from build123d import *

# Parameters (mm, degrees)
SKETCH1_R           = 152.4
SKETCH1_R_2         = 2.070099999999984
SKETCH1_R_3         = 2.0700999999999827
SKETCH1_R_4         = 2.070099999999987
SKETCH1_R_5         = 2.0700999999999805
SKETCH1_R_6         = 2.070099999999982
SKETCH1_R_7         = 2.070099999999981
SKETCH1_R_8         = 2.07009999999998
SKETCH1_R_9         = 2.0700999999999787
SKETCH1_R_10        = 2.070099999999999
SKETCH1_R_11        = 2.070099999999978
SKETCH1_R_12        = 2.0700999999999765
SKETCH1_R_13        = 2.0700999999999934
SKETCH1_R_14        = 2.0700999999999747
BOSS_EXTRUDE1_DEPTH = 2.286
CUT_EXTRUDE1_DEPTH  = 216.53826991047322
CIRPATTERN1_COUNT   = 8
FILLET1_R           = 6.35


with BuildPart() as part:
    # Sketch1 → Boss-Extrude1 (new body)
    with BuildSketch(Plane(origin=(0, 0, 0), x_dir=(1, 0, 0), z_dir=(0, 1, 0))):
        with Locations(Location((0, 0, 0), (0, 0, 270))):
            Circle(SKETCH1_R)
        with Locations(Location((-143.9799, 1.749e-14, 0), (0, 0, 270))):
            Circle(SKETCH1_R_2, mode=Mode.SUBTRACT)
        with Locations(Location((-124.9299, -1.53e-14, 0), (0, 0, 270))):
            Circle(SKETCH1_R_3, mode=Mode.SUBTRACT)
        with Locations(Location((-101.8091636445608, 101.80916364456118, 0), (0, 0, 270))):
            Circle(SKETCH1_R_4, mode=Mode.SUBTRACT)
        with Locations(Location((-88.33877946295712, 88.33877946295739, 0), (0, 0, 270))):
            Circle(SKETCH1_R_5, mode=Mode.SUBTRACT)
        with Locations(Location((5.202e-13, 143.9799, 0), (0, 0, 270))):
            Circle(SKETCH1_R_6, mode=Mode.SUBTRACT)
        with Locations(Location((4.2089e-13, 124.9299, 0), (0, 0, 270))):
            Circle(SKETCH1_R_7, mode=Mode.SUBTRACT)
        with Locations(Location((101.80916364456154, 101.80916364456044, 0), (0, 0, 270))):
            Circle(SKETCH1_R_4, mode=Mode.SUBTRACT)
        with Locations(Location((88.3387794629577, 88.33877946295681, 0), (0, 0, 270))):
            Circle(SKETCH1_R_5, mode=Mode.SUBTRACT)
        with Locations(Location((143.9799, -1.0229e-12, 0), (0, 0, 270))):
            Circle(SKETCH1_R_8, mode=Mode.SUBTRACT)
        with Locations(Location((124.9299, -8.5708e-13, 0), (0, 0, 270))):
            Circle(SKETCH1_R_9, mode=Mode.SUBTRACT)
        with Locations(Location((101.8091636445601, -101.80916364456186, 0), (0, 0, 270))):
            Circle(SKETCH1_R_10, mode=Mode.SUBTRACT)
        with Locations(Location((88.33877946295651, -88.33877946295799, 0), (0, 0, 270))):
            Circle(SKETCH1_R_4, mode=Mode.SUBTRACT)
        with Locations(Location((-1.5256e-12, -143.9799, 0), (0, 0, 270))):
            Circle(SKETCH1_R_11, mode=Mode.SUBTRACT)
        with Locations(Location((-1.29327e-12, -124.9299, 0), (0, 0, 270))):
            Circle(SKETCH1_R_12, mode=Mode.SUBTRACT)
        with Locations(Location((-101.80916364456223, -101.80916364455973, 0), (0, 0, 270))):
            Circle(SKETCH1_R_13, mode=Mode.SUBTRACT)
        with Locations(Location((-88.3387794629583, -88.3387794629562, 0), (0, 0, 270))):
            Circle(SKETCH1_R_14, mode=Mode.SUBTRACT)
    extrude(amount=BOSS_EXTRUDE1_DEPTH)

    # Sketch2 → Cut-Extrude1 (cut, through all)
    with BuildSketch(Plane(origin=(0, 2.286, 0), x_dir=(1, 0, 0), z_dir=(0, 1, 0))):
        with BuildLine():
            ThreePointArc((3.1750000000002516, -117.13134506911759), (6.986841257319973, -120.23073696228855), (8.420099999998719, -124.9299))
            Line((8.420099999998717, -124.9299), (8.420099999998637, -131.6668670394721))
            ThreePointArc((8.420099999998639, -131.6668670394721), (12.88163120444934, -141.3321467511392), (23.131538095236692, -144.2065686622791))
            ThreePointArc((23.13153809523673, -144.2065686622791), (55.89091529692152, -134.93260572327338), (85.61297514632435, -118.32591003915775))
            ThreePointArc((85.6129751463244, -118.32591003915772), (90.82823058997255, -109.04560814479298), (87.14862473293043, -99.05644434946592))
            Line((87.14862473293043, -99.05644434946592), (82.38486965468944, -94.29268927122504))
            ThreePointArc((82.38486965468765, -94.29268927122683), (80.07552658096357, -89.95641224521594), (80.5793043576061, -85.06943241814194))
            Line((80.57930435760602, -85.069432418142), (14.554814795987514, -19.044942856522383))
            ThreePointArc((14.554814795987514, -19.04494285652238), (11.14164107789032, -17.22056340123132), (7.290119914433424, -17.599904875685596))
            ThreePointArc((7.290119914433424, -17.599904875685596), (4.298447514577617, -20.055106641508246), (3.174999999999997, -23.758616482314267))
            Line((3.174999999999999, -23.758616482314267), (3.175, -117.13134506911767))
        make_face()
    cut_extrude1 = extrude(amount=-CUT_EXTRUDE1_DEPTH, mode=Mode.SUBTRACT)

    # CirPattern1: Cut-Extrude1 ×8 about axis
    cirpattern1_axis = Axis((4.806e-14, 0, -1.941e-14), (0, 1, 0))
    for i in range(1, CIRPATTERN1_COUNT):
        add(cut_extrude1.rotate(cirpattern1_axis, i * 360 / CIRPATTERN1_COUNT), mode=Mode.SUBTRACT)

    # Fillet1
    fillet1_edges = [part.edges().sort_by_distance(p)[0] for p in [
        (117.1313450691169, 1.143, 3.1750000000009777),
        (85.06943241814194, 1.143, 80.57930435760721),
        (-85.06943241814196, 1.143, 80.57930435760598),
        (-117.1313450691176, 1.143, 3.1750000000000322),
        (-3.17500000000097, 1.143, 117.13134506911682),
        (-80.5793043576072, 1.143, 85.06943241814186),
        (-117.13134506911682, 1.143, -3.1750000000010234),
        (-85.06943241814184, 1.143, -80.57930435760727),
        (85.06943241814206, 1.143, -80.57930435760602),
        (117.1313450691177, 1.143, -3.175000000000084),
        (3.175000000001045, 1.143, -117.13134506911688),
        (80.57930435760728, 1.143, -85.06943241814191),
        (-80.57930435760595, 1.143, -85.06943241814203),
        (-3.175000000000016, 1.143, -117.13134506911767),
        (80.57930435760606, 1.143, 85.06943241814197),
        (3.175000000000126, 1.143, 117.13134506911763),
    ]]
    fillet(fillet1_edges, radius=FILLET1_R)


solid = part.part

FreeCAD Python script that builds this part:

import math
import FreeCAD as App
import Part
import Sketcher

V = App.Vector
Q = App.Units.Quantity


def edges_at(feature, points):
    """Names of the edges that pass closest to the given points."""
    edges = feature.Shape.Edges
    near = lambda p: min(range(len(edges)), key=lambda i: edges[i].distToShape(Part.Vertex(*p))[0])
    return sorted({f"Edge{near(p) + 1}" for p in points})

doc = App.newDocument("Part")
params = doc.addObject("Spreadsheet::Sheet", "Params")
for row, (alias, value) in enumerate([
    ("sketch1_diameter", "12 in"),
    ("sketch1_diameter2", "0.163 in"),
    ("pad1_length", "0.09 in"),
    ("sketch2_radius", "0.5 in"),
    ("sketch2_radius2", "5.75 in"),
    ("fillet_radius", "0.25 in"),
], start=1):
    params.set(f"A{row}", alias)
    params.set(f"B{row}", "=" + value)
    params.setAlias(f"B{row}", alias)

body = doc.addObject("PartDesign::Body", "Body")

# Sketch on XZ plane
sketch1 = body.newObject("Sketcher::SketchObject", "Sketch")
sketch1.AttachmentSupport = (doc.getObject("XZ_Plane"), [""])
sketch1.MapMode = "FlatFace"
sketch1.addGeometry([
    Part.Circle(V(0, 0, 0), V(0, 0, 1), 152.4),  # 0
    Part.Circle(V(-101.809164, -101.809164, 0), V(0, 0, 1), 2.0701),  # 1
    Part.Circle(V(-88.338779, -88.338779, 0), V(0, 0, 1), 2.0701),  # 2
    Part.Circle(V(-143.9799, 0, 0), V(0, 0, 1), 2.0701),  # 3
    Part.Circle(V(-124.9299, 0, 0), V(0, 0, 1), 2.0701),  # 4
    Part.Circle(V(-101.809164, 101.809164, 0), V(0, 0, 1), 2.0701),  # 5
    Part.Circle(V(-88.338779, 88.338779, 0), V(0, 0, 1), 2.0701),  # 6
    Part.Circle(V(0, 124.9299, 0), V(0, 0, 1), 2.0701),  # 7
    Part.Circle(V(0, 143.9799, 0), V(0, 0, 1), 2.0701),  # 8
    Part.Circle(V(0, -143.9799, 0), V(0, 0, 1), 2.0701),  # 9
    Part.Circle(V(0, -124.9299, 0), V(0, 0, 1), 2.0701),  # 10
    Part.Circle(V(88.338779, -88.338779, 0), V(0, 0, 1), 2.0701),  # 11
    Part.Circle(V(101.809164, -101.809164, 0), V(0, 0, 1), 2.0701),  # 12
    Part.Circle(V(124.9299, 0, 0), V(0, 0, 1), 2.0701),  # 13
    Part.Circle(V(143.9799, 0, 0), V(0, 0, 1), 2.0701),  # 14
    Part.Circle(V(88.338779, 88.338779, 0), V(0, 0, 1), 2.0701),  # 15
    Part.Circle(V(101.809164, 101.809164, 0), V(0, 0, 1), 2.0701),  # 16
], False)
sketch1.addConstraint([
    Sketcher.Constraint("Coincident", 0, 3, -1, 1),
    Sketcher.Constraint("Equal", 1, 2),
    Sketcher.Constraint("Equal", 2, 3),
    Sketcher.Constraint("Equal", 3, 4),
    Sketcher.Constraint("Equal", 4, 5),
    Sketcher.Constraint("Equal", 5, 6),
    Sketcher.Constraint("Equal", 6, 7),
    Sketcher.Constraint("Equal", 7, 8),
    Sketcher.Constraint("Equal", 8, 9),
    Sketcher.Constraint("Equal", 9, 10),
    Sketcher.Constraint("Equal", 10, 11),
    Sketcher.Constraint("Equal", 11, 12),
    Sketcher.Constraint("Equal", 12, 13),
    Sketcher.Constraint("Equal", 13, 14),
    Sketcher.Constraint("Equal", 14, 15),
    Sketcher.Constraint("Equal", 15, 16),
    Sketcher.Constraint("Symmetric", 8, 3, 9, 3, -1, 1),
    Sketcher.Constraint("Symmetric", 7, 3, 10, 3, -1, 1),
    Sketcher.Constraint("Symmetric", 6, 3, 11, 3, -1, 1),
    Sketcher.Constraint("Symmetric", 5, 3, 12, 3, -1, 1),
    Sketcher.Constraint("Symmetric", 4, 3, 13, 3, -1, 1),
    Sketcher.Constraint("Symmetric", 3, 3, 14, 3, -1, 1),
    Sketcher.Constraint("Symmetric", 2, 3, 15, 3, -1, 1),
    Sketcher.Constraint("Symmetric", 1, 3, 16, 3, -1, 1),
    Sketcher.Constraint("Symmetric", 2, 3, 11, 3, -2),
    Sketcher.Constraint("Symmetric", 1, 3, 12, 3, -2),
    Sketcher.Constraint("PointOnObject", 3, 3, -1),
    Sketcher.Constraint("PointOnObject", 4, 3, -1),
    Sketcher.Constraint("PointOnObject", 7, 3, -2),
    Sketcher.Constraint("PointOnObject", 8, 3, -2),
    Sketcher.Constraint("Diameter", 0, Q("12 in")),
    Sketcher.Constraint("Diameter", 1, Q("0.163 in")),
    Sketcher.Constraint("DistanceX", 3, 3, 4, 3, Q("0.75 in")),
    Sketcher.Constraint("DistanceY", 7, 3, 8, 3, Q("0.75 in")),
    Sketcher.Constraint("DistanceX", 3, 3, -1, 1, Q("5.6685 in")),
    Sketcher.Constraint("DistanceY", -1, 1, 7, 3, Q("4.9185 in")),
    Sketcher.Constraint("DistanceX", 2, 3, -1, 1, 88.338779),
    Sketcher.Constraint("DistanceY", 2, 3, -1, 1, 88.338779),
    Sketcher.Constraint("DistanceX", 1, 3, -1, 1, 101.809164),
    Sketcher.Constraint("DistanceY", 1, 3, -1, 1, 101.809164),
])
sketch1.setExpression("Constraints[30]", "Params.sketch1_diameter")
sketch1.setExpression("Constraints[31]", "Params.sketch1_diameter2")
pad1 = body.newObject("PartDesign::Pad", "Pad")
pad1.Profile = sketch1
pad1.setExpression("Length", "Params.pad1_length")
pad1.Reversed = True

# Sketch on XZ plane
sketch2 = body.newObject("Sketcher::SketchObject", "Sketch001")
sketch2.AttachmentSupport = (doc.getObject("XZ_Plane"), [""])
sketch2.MapMode = "FlatFace"
sketch2.AttachmentOffset = App.Placement(V(0, 0, -0.09 * 25.4), App.Rotation())
sketch2.addGeometry([
    Part.ArcOfCircle(Part.Circle(V(0, 124.9299, 0), V(0, 0, 1), 8.4201), math.radians(-67.847449), math.radians(0)),  # 0
    Part.LineSegment(V(8.4201, 124.9299, 0), V(8.4201, 131.666867, 0)),  # 1
    Part.ArcOfCircle(Part.Circle(V(21.1201, 131.666867, 0), V(0, 0, 1), 12.7), math.radians(80.887067), math.radians(180)),  # 2
    Part.ArcOfCircle(Part.Circle(V(0, 0, 0), V(0, 0, 1), 146.05), math.radians(54.112933), math.radians(80.887067)),  # 3
    Part.ArcOfCircle(Part.Circle(V(78.168369, 108.0367, 0), V(0, 0, 1), 12.7), math.radians(-45), math.radians(54.112933)),  # 4
    Part.LineSegment(V(87.148625, 99.056444, 0), V(82.38487, 94.292689, 0)),  # 5
    Part.ArcOfCircle(Part.Circle(V(88.338779, 88.338779, 0), V(0, 0, 1), 8.4201), math.radians(135), math.radians(202.847449)),  # 6
    Part.LineSegment(V(80.579304, 85.069432, 0), V(14.554815, 19.044943, 0)),  # 7
    Part.ArcOfCircle(Part.Circle(V(9.841141, 23.758616, 0), V(0, 0, 1), 6.666141), math.radians(180), math.radians(315)),  # 8
    Part.LineSegment(V(3.175, 23.758616, 0), V(3.175, 117.131345, 0)),  # 9
], False)
sketch2.addConstraint([
    Sketcher.Constraint("Tangent", 0, 2, 1, 1),
    Sketcher.Constraint("Tangent", 1, 2, 2, 2),
    Sketcher.Constraint("Tangent", 2, 1, 3, 2),
    Sketcher.Constraint("Tangent", 3, 1, 4, 2),
    Sketcher.Constraint("Tangent", 4, 1, 5, 1),
    Sketcher.Constraint("Tangent", 5, 2, 6, 1),
    Sketcher.Constraint("Coincident", 6, 2, 7, 1),
    Sketcher.Constraint("Tangent", 7, 2, 8, 2),
    Sketcher.Constraint("Tangent", 8, 1, 9, 1),
    Sketcher.Constraint("Coincident", 9, 2, 0, 1),
    Sketcher.Constraint("Vertical", 1),
    Sketcher.Constraint("Vertical", 9),
    Sketcher.Constraint("Coincident", 3, 3, -1, 1),
    Sketcher.Constraint("Equal", 2, 4),
    Sketcher.Constraint("Equal", 0, 6),
    Sketcher.Constraint("PointOnObject", 0, 3, -2),
    Sketcher.Constraint("Parallel", 5, 7),
    Sketcher.Constraint("Radius", 2, Q("0.5 in")),
    Sketcher.Constraint("Radius", 3, Q("5.75 in")),
    Sketcher.Constraint("Angle", 5, Q("-135 deg")),
    Sketcher.Constraint("Radius", 0, Q("0.3315 in")),
    Sketcher.Constraint("DistanceX", -1, 1, 8, 1, Q("0.125 in")),
    Sketcher.Constraint("Radius", 8, 6.666141),
    Sketcher.Constraint("DistanceY", -1, 1, 0, 3, Q("4.9185 in")),
    Sketcher.Constraint("DistanceY", 9, 1, 9, 2, 93.372729),
    Sketcher.Constraint("DistanceY", -1, 1, 4, 3, 108.0367),
    Sketcher.Constraint("DistanceX", 4, 3, 5, 2, 4.216501),
])
sketch2.setExpression("Constraints[17]", "Params.sketch2_radius")
sketch2.setExpression("Constraints[18]", "Params.sketch2_radius2")
pocket1 = body.newObject("PartDesign::Pocket", "Pocket")
pocket1.Profile = sketch2
pocket1.Type = "ThroughAll"
pocket1.Reversed = True
doc.recompute()

polarpattern = body.newObject("PartDesign::PolarPattern", "PolarPattern")
polarpattern.Originals = [pocket1]
polarpattern.Axis = (doc.getObject("Y_Axis"), [""])
polarpattern.Angle = 360
polarpattern.Occurrences = 8
body.Tip = polarpattern
doc.recompute()

fillet = body.newObject("PartDesign::Fillet", "Fillet")
fillet.Base = (polarpattern, edges_at(polarpattern, [
    (117.131, 1.143, 3.175),
    (85.069, 1.143, 80.579),
    (-85.069, 1.143, 80.579),
    (-117.131, 1.143, 3.175),
    (-3.175, 1.143, 117.131),
    (-80.579, 1.143, 85.069),
    (-117.131, 1.143, -3.175),
    (-85.069, 1.143, -80.579),
    (85.069, 1.143, -80.579),
    (117.131, 1.143, -3.175),
    (3.175, 1.143, -117.131),
    (80.579, 1.143, -85.069),
    (-80.579, 1.143, -85.069),
    (-3.175, 1.143, -117.131),
    (80.579, 1.143, 85.069),
    (3.175, 1.143, 117.131),
]))
fillet.setExpression("Radius", "Params.fillet_radius")

doc.recompute()
